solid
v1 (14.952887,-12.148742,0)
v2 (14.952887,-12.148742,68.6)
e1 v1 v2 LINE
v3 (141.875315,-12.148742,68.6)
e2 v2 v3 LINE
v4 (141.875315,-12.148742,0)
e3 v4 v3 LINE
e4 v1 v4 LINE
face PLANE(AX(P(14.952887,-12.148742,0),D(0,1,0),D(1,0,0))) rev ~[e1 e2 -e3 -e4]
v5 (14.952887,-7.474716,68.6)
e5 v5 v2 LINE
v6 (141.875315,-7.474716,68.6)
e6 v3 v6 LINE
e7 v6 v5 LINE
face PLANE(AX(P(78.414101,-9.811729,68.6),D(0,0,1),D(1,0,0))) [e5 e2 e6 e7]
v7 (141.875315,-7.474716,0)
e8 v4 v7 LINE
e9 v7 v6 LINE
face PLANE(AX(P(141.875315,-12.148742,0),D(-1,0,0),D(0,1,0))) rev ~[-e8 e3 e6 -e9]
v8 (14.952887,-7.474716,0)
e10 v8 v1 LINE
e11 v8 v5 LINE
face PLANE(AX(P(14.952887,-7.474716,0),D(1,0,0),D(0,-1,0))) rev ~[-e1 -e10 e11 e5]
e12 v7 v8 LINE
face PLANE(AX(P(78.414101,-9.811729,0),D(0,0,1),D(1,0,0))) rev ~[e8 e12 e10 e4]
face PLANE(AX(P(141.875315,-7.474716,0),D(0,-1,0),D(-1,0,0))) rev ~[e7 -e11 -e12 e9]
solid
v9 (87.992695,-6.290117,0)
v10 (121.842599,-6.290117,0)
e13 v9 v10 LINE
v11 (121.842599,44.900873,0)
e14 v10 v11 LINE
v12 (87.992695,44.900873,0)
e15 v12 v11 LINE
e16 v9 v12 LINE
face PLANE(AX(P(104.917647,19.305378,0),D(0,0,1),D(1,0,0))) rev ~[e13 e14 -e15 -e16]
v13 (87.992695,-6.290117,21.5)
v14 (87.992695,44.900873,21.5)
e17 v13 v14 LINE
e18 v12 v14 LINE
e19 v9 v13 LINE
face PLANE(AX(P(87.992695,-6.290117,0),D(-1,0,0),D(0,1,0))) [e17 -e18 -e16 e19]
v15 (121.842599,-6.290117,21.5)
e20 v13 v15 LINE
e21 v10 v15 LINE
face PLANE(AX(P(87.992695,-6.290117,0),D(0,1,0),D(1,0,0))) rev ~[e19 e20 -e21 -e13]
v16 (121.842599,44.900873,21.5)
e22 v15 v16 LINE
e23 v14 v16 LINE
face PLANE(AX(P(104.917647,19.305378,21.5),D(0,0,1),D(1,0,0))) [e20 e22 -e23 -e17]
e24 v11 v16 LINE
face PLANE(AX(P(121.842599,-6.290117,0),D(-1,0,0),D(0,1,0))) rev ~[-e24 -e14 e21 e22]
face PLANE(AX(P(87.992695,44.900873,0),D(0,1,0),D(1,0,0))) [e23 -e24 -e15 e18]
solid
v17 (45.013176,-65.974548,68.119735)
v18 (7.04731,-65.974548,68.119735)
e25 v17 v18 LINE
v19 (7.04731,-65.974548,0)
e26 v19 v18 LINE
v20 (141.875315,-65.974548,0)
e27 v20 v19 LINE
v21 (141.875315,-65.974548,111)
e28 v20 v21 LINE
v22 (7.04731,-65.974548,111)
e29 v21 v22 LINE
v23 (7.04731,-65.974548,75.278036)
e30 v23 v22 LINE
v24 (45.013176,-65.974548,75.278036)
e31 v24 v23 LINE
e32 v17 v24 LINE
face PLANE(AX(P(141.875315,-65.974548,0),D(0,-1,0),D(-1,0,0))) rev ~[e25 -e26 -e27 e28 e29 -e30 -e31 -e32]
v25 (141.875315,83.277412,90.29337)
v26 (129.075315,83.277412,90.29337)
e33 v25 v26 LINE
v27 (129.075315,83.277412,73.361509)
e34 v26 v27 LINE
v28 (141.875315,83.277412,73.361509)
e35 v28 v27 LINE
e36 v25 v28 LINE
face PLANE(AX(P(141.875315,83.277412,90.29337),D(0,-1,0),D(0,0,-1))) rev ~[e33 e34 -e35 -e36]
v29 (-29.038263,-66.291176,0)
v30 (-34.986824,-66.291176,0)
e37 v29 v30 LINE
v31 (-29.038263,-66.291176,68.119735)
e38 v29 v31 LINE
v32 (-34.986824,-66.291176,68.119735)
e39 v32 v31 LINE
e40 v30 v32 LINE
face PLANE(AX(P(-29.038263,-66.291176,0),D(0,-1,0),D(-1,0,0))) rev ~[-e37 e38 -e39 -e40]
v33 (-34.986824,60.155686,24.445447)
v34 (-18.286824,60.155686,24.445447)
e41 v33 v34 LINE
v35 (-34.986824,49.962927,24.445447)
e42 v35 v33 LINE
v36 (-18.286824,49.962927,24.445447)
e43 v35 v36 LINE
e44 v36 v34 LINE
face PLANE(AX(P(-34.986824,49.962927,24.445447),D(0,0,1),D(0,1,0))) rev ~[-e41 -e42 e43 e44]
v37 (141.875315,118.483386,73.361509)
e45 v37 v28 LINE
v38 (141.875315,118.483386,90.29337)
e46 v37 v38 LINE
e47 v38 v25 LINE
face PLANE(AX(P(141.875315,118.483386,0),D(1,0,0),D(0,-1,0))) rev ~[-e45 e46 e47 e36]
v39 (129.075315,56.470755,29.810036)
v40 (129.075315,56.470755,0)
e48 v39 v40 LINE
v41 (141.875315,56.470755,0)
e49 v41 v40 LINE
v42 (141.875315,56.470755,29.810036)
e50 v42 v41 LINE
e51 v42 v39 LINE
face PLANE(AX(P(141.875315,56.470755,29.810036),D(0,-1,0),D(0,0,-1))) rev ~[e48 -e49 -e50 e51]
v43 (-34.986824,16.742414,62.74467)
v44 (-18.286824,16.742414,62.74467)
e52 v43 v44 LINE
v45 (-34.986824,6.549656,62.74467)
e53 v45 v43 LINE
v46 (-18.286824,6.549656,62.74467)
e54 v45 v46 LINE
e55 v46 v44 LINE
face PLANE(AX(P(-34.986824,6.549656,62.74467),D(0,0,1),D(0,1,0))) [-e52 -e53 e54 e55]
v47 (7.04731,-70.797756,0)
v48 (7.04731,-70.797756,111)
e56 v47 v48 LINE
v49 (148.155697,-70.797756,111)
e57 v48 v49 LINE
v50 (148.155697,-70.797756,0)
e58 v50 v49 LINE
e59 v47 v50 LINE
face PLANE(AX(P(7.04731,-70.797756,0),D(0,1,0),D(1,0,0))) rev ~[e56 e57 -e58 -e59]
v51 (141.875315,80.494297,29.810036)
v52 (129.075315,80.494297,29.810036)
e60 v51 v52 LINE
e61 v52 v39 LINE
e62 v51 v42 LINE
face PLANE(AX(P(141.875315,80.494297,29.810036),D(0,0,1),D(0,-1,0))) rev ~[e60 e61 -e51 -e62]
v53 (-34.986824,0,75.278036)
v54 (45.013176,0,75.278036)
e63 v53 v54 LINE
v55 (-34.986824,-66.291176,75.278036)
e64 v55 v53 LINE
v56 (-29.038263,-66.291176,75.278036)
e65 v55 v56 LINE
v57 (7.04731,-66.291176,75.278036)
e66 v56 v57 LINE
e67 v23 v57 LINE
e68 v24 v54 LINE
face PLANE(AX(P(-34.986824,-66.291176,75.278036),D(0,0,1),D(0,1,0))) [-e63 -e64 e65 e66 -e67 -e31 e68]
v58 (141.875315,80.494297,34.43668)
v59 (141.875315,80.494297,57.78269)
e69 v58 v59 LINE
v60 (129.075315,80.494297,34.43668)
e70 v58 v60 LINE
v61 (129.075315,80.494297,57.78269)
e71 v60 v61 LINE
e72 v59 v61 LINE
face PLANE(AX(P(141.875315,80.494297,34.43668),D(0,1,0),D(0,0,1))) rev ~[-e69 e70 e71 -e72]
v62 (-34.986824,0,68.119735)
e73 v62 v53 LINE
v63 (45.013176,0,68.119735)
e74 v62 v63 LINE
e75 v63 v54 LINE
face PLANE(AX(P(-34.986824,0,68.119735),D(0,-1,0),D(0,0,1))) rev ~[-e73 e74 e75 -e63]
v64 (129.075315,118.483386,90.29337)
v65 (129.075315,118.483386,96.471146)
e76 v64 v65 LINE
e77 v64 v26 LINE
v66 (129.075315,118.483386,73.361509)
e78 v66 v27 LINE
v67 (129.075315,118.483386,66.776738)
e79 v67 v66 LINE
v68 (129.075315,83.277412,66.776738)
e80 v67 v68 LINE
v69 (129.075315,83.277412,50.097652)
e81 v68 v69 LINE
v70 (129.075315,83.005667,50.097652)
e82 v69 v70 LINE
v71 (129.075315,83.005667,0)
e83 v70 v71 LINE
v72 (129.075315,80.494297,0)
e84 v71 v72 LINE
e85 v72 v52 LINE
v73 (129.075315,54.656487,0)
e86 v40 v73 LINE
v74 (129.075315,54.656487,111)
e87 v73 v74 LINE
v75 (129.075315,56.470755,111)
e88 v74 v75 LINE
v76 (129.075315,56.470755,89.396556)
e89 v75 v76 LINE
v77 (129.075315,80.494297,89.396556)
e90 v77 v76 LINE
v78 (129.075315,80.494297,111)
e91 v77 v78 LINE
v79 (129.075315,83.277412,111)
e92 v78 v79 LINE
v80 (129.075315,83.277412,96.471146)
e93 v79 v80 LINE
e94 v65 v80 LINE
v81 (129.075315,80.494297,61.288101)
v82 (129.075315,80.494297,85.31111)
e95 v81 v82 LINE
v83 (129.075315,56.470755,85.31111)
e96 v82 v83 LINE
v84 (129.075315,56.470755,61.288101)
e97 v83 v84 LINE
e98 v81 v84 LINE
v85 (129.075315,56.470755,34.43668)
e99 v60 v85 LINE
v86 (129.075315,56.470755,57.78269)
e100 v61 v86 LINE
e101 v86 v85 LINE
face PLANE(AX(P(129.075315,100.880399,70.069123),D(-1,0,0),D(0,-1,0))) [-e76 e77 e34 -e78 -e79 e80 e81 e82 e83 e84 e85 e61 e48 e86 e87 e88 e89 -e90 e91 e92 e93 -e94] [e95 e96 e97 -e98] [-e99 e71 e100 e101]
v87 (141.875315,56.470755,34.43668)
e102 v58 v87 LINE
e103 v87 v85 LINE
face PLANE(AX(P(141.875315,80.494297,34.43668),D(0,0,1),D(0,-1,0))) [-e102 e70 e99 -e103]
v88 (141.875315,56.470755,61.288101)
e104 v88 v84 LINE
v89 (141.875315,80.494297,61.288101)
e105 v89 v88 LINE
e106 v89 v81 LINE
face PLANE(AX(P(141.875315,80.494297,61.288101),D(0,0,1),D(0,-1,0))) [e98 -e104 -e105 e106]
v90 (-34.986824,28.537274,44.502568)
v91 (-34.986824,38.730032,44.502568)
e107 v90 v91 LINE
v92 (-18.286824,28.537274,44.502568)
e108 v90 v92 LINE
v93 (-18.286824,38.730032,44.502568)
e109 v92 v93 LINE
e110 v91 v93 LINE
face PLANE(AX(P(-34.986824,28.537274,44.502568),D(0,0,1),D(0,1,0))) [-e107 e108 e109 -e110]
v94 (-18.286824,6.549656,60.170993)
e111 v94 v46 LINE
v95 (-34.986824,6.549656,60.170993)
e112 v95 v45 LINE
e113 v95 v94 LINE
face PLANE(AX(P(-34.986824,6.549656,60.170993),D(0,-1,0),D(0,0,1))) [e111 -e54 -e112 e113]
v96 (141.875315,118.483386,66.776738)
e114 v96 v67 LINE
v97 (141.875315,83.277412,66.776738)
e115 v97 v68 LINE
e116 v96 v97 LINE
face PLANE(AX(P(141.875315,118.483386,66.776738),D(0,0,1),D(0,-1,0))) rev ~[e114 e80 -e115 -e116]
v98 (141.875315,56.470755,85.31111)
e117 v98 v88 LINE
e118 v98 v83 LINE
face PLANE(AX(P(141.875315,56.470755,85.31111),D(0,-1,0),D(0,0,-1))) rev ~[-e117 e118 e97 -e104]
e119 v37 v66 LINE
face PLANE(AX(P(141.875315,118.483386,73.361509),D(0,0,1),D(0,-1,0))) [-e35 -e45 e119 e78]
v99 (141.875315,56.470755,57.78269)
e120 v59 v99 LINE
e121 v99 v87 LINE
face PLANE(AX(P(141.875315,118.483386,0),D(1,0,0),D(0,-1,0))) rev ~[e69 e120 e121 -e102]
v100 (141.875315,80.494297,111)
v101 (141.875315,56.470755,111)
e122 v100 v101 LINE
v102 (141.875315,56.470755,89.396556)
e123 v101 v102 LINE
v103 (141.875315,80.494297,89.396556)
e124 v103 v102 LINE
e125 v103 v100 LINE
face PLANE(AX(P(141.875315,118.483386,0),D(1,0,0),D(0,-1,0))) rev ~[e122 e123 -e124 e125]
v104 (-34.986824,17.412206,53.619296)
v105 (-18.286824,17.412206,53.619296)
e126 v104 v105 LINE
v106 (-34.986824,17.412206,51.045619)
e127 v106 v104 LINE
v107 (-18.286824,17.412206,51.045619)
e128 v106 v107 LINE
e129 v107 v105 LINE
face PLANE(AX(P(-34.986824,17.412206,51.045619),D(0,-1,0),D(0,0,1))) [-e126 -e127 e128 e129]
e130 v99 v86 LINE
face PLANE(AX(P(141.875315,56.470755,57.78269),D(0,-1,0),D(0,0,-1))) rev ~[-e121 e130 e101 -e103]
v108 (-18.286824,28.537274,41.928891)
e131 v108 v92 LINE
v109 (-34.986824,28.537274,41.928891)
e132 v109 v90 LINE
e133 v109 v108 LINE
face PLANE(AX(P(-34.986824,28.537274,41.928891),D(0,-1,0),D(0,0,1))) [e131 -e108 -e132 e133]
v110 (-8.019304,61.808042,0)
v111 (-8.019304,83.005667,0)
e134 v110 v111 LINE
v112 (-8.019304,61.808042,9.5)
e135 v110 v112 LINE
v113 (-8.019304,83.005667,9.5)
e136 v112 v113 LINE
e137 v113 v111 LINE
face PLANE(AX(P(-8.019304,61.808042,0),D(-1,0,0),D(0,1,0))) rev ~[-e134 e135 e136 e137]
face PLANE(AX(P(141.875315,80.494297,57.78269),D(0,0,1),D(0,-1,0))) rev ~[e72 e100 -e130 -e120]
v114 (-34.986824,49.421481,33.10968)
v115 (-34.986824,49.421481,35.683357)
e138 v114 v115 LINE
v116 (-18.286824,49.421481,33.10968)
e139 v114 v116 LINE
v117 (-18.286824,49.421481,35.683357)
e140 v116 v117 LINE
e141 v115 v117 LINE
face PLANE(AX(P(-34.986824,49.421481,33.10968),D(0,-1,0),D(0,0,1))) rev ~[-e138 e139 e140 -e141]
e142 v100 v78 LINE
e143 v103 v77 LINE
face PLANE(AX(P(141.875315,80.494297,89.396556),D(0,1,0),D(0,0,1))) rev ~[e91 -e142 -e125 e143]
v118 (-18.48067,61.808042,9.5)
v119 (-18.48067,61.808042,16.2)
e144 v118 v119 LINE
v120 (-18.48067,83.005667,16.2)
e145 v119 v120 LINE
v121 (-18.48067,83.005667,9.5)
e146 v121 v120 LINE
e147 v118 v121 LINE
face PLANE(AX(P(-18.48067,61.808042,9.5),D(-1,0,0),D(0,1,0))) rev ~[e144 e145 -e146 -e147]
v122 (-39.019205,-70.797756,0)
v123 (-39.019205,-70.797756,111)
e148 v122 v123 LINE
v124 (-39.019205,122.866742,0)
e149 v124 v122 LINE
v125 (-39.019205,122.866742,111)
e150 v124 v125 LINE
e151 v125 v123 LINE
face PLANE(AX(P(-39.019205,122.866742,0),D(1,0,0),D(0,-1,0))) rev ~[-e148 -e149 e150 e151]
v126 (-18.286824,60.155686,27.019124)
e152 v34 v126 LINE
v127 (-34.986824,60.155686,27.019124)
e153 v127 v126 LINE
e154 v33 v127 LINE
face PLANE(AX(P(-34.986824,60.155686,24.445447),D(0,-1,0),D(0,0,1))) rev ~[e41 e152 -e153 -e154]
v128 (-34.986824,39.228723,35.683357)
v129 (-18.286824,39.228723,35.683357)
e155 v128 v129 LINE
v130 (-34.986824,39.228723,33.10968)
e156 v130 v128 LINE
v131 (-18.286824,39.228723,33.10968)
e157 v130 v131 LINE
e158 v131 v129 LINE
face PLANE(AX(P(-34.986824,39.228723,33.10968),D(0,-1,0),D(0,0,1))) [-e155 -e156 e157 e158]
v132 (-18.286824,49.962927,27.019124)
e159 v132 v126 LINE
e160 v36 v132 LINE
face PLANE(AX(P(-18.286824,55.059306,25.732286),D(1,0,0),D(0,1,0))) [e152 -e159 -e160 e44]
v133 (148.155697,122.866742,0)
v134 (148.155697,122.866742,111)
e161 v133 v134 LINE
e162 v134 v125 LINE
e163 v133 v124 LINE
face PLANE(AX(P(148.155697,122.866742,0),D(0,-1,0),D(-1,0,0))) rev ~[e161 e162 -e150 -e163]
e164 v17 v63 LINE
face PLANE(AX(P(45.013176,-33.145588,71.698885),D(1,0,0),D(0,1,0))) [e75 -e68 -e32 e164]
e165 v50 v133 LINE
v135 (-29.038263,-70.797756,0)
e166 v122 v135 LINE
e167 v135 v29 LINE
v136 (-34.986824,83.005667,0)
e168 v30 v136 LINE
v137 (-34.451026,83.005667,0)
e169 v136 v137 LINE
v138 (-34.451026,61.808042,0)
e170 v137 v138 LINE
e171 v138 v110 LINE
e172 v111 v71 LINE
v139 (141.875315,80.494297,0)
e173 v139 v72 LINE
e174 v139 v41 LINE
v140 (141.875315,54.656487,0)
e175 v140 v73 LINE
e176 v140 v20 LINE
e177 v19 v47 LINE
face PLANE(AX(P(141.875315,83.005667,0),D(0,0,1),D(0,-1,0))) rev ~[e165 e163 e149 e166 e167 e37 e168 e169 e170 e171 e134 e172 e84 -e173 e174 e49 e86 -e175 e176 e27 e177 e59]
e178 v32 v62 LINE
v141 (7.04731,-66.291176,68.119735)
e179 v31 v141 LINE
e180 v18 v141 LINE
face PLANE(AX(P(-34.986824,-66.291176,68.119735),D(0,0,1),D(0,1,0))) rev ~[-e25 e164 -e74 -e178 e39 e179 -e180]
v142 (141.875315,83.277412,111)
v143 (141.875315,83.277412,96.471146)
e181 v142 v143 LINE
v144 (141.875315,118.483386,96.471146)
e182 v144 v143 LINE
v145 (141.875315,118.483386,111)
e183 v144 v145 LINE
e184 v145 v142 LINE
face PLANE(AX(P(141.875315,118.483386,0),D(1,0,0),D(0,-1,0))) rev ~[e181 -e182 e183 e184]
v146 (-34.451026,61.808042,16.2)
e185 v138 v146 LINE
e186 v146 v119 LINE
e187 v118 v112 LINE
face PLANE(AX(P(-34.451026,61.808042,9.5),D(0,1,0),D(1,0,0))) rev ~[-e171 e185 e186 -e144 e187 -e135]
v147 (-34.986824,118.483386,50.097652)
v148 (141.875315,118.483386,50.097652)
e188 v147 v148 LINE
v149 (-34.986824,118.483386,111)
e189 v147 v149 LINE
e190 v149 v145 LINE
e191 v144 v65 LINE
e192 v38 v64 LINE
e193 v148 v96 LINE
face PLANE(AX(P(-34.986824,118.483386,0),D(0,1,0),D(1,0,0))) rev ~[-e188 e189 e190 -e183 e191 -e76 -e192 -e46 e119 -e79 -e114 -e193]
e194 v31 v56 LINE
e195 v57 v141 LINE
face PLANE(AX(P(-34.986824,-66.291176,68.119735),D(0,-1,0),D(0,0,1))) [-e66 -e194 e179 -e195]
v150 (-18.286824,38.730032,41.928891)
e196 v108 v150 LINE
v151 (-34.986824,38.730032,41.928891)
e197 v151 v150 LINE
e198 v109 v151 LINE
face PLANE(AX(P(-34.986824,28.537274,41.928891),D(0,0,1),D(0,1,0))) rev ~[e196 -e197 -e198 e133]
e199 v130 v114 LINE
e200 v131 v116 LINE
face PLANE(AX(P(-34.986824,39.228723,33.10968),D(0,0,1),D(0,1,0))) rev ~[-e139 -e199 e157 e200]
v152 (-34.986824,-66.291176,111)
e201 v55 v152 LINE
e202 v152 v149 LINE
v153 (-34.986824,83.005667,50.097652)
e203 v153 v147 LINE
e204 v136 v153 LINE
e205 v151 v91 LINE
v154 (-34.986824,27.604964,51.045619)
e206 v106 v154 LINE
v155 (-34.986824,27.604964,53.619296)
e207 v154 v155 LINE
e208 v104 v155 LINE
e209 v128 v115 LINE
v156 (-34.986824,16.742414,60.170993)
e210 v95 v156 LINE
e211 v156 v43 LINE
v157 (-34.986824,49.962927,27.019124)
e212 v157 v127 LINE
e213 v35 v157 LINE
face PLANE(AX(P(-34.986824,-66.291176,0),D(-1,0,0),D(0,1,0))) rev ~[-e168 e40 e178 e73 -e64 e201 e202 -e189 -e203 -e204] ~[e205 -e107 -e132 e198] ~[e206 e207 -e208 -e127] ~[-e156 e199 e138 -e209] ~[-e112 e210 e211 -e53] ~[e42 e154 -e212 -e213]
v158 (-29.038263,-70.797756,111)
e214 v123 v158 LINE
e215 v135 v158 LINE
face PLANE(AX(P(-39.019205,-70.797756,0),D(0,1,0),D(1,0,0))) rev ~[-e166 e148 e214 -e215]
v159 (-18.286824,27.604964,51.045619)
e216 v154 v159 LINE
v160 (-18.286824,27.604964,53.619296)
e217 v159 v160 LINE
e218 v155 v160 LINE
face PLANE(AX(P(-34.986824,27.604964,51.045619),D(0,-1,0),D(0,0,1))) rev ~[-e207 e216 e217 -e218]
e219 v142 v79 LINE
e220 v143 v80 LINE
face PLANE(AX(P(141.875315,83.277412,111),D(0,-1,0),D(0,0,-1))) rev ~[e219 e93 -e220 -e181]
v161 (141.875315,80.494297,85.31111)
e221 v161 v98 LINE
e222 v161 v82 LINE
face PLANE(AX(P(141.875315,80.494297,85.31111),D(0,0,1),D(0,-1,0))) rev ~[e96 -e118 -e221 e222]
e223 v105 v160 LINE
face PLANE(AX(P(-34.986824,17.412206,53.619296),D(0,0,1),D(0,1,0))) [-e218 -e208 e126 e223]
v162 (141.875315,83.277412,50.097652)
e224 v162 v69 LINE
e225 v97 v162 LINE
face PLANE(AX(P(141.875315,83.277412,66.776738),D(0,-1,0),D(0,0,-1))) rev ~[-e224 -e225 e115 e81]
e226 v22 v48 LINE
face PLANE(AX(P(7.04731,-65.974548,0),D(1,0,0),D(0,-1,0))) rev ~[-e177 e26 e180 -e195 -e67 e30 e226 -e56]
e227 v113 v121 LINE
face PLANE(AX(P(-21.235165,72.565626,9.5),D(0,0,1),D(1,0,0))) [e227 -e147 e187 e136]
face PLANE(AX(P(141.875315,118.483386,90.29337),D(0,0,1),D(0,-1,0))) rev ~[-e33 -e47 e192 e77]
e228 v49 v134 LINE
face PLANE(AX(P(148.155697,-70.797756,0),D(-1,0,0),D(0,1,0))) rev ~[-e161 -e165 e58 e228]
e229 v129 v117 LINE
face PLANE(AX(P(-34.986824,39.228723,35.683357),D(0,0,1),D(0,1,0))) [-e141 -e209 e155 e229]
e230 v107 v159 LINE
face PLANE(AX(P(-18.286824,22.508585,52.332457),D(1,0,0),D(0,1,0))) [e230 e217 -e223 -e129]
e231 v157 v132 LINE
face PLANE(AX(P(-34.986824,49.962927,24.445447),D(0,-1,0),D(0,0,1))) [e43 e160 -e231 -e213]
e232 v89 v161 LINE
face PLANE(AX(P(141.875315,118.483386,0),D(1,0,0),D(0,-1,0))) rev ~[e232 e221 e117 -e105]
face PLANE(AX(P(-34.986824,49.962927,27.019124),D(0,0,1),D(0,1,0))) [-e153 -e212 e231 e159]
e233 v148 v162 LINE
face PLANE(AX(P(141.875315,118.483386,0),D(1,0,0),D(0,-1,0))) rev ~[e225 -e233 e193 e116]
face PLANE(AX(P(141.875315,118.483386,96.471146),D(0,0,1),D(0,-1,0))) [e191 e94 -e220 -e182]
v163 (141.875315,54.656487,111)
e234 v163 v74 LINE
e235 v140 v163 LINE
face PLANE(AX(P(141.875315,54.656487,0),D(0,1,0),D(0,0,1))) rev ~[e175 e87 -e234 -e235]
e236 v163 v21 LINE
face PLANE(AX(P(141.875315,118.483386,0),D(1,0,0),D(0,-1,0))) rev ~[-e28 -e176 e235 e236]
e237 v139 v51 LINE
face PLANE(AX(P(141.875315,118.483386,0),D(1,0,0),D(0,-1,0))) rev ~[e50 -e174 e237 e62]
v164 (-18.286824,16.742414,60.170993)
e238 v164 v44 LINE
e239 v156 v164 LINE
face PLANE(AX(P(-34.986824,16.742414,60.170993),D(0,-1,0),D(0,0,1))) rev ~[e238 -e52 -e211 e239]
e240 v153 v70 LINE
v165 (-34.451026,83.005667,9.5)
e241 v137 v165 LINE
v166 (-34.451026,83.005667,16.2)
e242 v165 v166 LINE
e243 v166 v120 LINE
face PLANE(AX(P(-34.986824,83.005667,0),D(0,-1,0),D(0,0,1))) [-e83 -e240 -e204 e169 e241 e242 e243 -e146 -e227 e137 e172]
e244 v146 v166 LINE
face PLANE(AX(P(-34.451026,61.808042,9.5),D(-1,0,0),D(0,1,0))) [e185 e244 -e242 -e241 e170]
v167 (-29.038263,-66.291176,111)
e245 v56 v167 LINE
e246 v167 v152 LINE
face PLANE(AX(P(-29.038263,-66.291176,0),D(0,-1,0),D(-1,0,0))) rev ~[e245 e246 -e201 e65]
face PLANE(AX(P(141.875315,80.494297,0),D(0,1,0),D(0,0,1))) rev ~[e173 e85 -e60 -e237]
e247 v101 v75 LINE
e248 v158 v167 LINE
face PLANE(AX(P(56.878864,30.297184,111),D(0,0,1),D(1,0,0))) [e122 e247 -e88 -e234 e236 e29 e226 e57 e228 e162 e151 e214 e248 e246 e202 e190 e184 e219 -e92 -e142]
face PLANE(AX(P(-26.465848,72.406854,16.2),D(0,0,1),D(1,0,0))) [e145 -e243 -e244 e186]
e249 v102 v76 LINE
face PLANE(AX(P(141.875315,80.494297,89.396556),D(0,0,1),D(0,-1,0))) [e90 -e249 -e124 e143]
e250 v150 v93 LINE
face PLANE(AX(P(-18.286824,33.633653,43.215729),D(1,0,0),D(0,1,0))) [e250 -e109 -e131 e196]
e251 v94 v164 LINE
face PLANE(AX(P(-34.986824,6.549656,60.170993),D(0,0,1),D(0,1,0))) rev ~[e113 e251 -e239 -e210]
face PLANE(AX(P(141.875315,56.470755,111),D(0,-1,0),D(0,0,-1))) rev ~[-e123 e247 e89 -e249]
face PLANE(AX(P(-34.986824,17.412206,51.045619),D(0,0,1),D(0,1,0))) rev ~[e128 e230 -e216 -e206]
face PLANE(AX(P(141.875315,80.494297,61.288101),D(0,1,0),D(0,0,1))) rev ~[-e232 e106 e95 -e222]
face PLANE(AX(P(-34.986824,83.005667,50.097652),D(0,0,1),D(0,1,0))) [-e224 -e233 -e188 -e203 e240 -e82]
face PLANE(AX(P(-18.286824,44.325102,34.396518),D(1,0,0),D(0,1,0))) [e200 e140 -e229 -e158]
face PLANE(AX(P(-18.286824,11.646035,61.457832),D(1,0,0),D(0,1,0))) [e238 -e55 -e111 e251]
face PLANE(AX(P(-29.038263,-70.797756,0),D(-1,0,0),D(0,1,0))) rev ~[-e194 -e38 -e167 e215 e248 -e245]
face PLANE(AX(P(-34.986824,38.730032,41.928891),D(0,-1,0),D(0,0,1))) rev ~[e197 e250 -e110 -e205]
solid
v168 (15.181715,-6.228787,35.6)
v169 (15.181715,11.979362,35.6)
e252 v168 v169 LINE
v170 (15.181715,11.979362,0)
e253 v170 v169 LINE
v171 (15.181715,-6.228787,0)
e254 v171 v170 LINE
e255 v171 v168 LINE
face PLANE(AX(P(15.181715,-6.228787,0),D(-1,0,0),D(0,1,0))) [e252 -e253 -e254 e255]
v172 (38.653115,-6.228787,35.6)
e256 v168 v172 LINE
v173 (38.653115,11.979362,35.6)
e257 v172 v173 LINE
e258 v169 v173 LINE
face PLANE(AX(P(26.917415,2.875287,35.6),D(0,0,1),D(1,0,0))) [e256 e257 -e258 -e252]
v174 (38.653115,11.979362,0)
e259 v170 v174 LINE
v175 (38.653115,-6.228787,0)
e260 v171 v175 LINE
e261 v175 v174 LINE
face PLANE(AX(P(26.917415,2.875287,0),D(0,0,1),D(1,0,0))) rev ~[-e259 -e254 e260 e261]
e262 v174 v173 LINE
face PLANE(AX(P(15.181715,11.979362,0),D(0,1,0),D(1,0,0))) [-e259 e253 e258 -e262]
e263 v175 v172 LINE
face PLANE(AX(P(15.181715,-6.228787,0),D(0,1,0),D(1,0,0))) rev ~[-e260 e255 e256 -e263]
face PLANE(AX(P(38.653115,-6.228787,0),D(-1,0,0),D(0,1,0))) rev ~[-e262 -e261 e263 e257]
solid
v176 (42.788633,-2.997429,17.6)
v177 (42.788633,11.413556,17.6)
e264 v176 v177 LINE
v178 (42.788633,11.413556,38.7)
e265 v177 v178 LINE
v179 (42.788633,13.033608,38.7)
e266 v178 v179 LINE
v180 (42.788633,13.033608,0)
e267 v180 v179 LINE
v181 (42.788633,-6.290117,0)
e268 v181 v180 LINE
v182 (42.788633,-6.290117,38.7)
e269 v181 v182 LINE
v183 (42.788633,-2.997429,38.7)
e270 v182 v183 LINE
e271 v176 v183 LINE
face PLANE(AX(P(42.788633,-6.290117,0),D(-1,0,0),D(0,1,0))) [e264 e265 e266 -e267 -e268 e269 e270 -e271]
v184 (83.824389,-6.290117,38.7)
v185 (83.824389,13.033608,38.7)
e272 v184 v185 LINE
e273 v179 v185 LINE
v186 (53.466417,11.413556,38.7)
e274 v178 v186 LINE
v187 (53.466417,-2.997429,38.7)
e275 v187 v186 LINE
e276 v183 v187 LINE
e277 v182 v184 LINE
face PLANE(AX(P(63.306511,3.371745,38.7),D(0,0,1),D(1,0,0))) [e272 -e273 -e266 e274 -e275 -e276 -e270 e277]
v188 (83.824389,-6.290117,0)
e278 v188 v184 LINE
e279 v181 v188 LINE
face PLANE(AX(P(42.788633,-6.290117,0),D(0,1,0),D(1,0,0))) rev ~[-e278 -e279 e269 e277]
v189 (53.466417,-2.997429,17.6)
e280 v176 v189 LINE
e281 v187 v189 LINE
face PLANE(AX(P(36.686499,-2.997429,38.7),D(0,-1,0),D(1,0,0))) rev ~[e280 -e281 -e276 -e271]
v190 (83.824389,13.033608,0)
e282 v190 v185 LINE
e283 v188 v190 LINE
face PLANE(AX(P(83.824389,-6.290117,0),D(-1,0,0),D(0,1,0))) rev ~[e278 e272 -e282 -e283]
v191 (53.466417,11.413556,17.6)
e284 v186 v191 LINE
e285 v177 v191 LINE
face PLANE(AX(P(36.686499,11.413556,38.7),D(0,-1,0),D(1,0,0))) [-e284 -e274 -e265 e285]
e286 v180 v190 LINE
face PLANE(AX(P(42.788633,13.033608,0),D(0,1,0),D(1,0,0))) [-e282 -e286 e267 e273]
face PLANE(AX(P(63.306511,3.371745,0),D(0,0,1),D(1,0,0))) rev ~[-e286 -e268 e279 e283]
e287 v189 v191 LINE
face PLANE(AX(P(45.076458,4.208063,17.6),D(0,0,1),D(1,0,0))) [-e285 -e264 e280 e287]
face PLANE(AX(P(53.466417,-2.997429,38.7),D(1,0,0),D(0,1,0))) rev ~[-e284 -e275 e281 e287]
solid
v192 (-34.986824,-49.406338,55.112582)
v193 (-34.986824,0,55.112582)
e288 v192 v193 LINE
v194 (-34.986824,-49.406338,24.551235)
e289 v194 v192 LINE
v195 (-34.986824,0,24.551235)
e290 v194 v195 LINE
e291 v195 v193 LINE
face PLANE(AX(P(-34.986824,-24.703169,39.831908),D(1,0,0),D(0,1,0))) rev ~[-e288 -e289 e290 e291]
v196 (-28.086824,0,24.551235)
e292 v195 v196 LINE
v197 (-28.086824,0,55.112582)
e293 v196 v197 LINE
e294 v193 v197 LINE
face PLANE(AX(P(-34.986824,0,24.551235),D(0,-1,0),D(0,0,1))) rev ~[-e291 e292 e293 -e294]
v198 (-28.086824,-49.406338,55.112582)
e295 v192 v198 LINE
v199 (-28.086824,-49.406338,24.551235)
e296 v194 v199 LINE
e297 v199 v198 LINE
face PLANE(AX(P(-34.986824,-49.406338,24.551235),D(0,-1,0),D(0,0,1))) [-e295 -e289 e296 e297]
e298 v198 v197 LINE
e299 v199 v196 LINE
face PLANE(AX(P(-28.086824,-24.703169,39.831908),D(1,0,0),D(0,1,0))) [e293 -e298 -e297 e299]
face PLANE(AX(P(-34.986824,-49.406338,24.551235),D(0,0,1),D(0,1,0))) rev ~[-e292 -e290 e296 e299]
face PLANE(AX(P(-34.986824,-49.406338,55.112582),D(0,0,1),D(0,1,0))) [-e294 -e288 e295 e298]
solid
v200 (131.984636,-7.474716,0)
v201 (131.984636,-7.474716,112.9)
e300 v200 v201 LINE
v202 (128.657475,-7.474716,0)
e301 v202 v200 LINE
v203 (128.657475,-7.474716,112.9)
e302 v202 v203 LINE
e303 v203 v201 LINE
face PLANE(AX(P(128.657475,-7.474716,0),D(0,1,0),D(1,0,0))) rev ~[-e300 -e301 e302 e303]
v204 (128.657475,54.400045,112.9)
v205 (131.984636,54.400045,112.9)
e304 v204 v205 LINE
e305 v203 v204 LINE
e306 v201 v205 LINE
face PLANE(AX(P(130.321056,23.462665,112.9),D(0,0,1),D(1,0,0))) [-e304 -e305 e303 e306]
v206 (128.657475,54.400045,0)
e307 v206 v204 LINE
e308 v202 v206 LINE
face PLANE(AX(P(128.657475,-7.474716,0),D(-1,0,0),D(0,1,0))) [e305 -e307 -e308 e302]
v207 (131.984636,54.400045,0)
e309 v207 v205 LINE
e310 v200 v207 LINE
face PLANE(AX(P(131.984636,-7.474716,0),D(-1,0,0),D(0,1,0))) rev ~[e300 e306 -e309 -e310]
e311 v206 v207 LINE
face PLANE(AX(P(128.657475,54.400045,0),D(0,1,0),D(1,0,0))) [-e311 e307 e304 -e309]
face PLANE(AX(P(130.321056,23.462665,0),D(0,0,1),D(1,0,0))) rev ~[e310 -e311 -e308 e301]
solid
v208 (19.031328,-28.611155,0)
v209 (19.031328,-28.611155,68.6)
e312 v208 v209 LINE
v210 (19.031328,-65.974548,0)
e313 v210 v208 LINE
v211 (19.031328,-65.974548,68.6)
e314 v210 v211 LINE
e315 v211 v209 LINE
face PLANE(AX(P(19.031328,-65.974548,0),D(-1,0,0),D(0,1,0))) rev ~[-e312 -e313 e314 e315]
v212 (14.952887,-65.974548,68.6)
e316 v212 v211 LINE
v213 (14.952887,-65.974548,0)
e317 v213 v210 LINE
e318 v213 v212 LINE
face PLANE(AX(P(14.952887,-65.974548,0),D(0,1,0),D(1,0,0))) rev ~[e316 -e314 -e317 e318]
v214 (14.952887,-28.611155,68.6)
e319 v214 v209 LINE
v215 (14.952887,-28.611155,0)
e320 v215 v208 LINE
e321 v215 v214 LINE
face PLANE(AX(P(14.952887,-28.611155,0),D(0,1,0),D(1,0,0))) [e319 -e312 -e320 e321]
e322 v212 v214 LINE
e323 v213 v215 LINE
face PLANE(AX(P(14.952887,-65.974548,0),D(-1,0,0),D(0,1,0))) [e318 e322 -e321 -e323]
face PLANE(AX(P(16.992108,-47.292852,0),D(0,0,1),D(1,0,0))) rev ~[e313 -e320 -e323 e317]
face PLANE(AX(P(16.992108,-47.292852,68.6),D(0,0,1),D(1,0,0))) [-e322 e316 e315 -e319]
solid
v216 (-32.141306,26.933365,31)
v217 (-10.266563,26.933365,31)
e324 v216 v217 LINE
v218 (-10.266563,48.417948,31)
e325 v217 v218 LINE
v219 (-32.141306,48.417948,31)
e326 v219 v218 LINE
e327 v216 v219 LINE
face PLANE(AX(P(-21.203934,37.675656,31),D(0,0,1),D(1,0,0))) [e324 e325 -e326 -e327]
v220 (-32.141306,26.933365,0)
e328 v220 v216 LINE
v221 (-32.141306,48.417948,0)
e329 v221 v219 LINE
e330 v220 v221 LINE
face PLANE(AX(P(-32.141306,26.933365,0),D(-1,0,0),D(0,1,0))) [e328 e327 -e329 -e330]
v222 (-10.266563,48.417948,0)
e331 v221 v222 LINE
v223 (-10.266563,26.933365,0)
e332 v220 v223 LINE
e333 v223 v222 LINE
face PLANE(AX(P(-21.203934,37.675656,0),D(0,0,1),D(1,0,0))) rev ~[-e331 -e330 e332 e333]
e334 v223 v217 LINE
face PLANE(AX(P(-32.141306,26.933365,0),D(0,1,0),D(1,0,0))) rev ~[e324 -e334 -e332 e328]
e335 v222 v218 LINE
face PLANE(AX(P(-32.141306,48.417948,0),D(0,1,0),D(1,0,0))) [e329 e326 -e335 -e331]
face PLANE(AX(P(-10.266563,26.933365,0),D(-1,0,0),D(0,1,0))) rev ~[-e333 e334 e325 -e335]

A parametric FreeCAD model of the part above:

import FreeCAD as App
import Part
import Sketcher
from FreeCAD import Vector


def add_polygon(sketch, points):
    """Adds a closed chain of lines whose ends are joined by coincident constraints."""
    first, n = sketch.GeometryCount, len(points)
    for a, b in zip(points, points[1:] + points[:1]):
        sketch.addGeometry(Part.LineSegment(App.Vector(*a, 0), App.Vector(*b, 0)), False)
    for i in range(n):
        sketch.addConstraint(Sketcher.Constraint("Coincident", first + i, 2, first + (i + 1) % n, 1))

doc = App.newDocument("Part")
params = doc.addObject("Spreadsheet::Sheet", "Params")
for row, (alias, value) in enumerate([
    ("pad1_length", "111 mm"),
    ("pad2_length", "80 mm"),
    ("pad3_length", "177 mm"),
    ("sketch4_height", "111 mm"),
    ("pad4_length", "12.8 mm"),
    ("pad5_length", "16.7 mm"),
    ("pad6_length", "9.5 mm"),
    ("pad7_length", "6.7 mm"),
    ("pad8_length", "21.5 mm"),
    ("pad9_length", "38.7 mm"),
    ("pocket1_length", "21.1 mm"),
    ("pad10_length", "6.9 mm"),
    ("pad11_length", "112.9 mm"),
    ("pad12_length", "68.6 mm"),
    ("pad13_length", "68.6 mm"),
    ("pad14_length", "31 mm"),
    ("pad15_length", "35.6 mm"),
], start=1):
    params.set(f"A{row}", alias)
    params.set(f"B{row}", "=" + value)
    params.setAlias(f"B{row}", alias)

body = doc.addObject("PartDesign::Body", "Body")

# Sketch on XY plane
sketch1 = body.newObject("Sketcher::SketchObject", "Sketch")
sketch1.AttachmentSupport = (doc.getObject("XY_Plane"), [""])
sketch1.MapMode = "FlatFace"
add_polygon(sketch1, [(-39.019205, -70.797756), (-29.038263, -70.797756), (-29.038263, -66.291176), (-34.986824, -66.291176), (-34.986824, 118.483386), (141.875315, 118.483386), (141.875315, -65.974548), (7.04731, -65.974548), (7.04731, -70.797756), (148.155697, -70.797756), (148.155697, 122.866742), (-39.019205, 122.866742)])  # lines 0-11
sketch1.addConstraint([
    Sketcher.Constraint("Horizontal", 0),
    Sketcher.Constraint("Vertical", 1),
    Sketcher.Constraint("Horizontal", 2),
    Sketcher.Constraint("Vertical", 3),
    Sketcher.Constraint("Horizontal", 4),
    Sketcher.Constraint("Vertical", 5),
    Sketcher.Constraint("Horizontal", 6),
    Sketcher.Constraint("Vertical", 7),
    Sketcher.Constraint("Horizontal", 8),
    Sketcher.Constraint("Vertical", 9),
    Sketcher.Constraint("Horizontal", 10),
    Sketcher.Constraint("Vertical", 11),
    Sketcher.Constraint("Horizontal", 0, 2, 7, 2),
    Sketcher.Constraint("DistanceX", 10, 2, 10, 1, 187.174901),
    Sketcher.Constraint("DistanceY", 9, 1, 9, 2, 193.664499),
    Sketcher.Constraint("DistanceX", 0, 1, 0, 2, 9.980941),
    Sketcher.Constraint("DistanceX", 2, 2, 2, 1, 5.94856),
    Sketcher.Constraint("DistanceX", 4, 1, 4, 2, 176.862139),
    Sketcher.Constraint("DistanceY", 1, 1, 1, 2, 4.506581),
    Sketcher.Constraint("DistanceY", 3, 1, 3, 2, 184.774562),
    Sketcher.Constraint("DistanceX", 6, 2, 6, 1, 134.828006),
    Sketcher.Constraint("DistanceY", 5, 2, 5, 1, 184.457934),
    Sketcher.Constraint("DistanceY", 5, 2, -1, 1, 65.974548),
    Sketcher.Constraint("DistanceX", -1, 1, 6, 2, 7.04731),
])
pad1 = body.newObject("PartDesign::Pad", "Pad")
pad1.Profile = sketch1
pad1.setExpression("Length", "Params.pad1_length")

# Sketch on YZ plane
sketch2 = body.newObject("Sketcher::SketchObject", "Sketch001")
sketch2.AttachmentSupport = (doc.getObject("YZ_Plane"), [""])
sketch2.MapMode = "FlatFace"
sketch2.AttachmentOffset = App.Placement(Vector(0, 0, -34.986824), App.Rotation())
add_polygon(sketch2, [(-66.291176, 75.278036), (-66.291176, 68.119735), (0, 68.119735), (0, 75.278036)])  # lines 0-3
sketch2.addConstraint([
    Sketcher.Constraint("Vertical", 0),
    Sketcher.Constraint("Horizontal", 1),
    Sketcher.Constraint("Vertical", 2),
    Sketcher.Constraint("Horizontal", 3),
    Sketcher.Constraint("PointOnObject", 1, 2, -2),
    Sketcher.Constraint("DistanceY", 0, 2, 0, 1, 7.158302),
    Sketcher.Constraint("DistanceX", 1, 1, 1, 2, 66.291176),
    Sketcher.Constraint("DistanceY", -1, 1, 0, 2, 68.119735),
])
pad2 = body.newObject("PartDesign::Pad", "Pad001")
pad2.Profile = sketch2
pad2.setExpression("Length", "Params.pad2_length")

# Sketch on YZ plane
sketch3 = body.newObject("Sketcher::SketchObject", "Sketch002")
sketch3.AttachmentSupport = (doc.getObject("YZ_Plane"), [""])
sketch3.MapMode = "FlatFace"
sketch3.AttachmentOffset = App.Placement(Vector(0, 0, -34.986824), App.Rotation())
add_polygon(sketch3, [(83.005667, 50.097652), (83.005667, 0), (118.483386, 0), (118.483386, 50.097652)])  # lines 0-3
sketch3.addConstraint([
    Sketcher.Constraint("Vertical", 0),
    Sketcher.Constraint("Horizontal", 1),
    Sketcher.Constraint("Vertical", 2),
    Sketcher.Constraint("Horizontal", 3),
    Sketcher.Constraint("PointOnObject", 0, 2, -1),
    Sketcher.Constraint("DistanceX", 1, 1, 1, 2, 35.477719),
    Sketcher.Constraint("DistanceY", 0, 2, 0, 1, 50.097652),
    Sketcher.Constraint("DistanceX", -1, 1, 0, 2, 83.005667),
])
pad3 = body.newObject("PartDesign::Pad", "Pad002")
pad3.Profile = sketch3
pad3.setExpression("Length", "Params.pad3_length")

# Sketch on YZ plane
sketch4 = body.newObject("Sketcher::SketchObject", "Sketch003")
sketch4.AttachmentSupport = (doc.getObject("YZ_Plane"), [""])
sketch4.MapMode = "FlatFace"
sketch4.AttachmentOffset = App.Placement(Vector(0, 0, 141.875315), App.Rotation())
add_polygon(sketch4, [(118.483386, 73.361509), (118.483386, 66.776738), (83.277412, 66.776738), (83.277412, 50.097652), (83.005667, 50.097652), (83.005667, 0), (80.494297, 0), (80.494297, 29.810036), (56.470755, 29.810036), (56.470755, 0), (54.656487, 0), (54.656487, 111), (56.470755, 111), (56.470755, 89.396556), (80.494297, 89.396556), (80.494297, 111), (83.277412, 111), (83.277412, 96.471146), (118.483386, 96.471146), (118.483386, 90.29337), (83.277412, 90.29337), (83.277412, 73.361509)])  # lines 0-21
add_polygon(sketch4, [(56.470755, 34.43668), (80.494297, 34.43668), (80.494297, 57.78269), (56.470755, 57.78269)])  # lines 22-25
add_polygon(sketch4, [(56.470755, 61.288101), (80.494297, 61.288101), (80.494297, 85.31111), (56.470755, 85.31111)])  # lines 26-29
sketch4.addConstraint([
    Sketcher.Constraint("Vertical", 0),
    Sketcher.Constraint("Horizontal", 1),
    Sketcher.Constraint("Vertical", 2),
    Sketcher.Constraint("Horizontal", 3),
    Sketcher.Constraint("Vertical", 4),
    Sketcher.Constraint("Horizontal", 5),
    Sketcher.Constraint("Vertical", 6),
    Sketcher.Constraint("Horizontal", 7),
    Sketcher.Constraint("Vertical", 8),
    Sketcher.Constraint("Horizontal", 9),
    Sketcher.Constraint("Vertical", 10),
    Sketcher.Constraint("Horizontal", 11),
    Sketcher.Constraint("Vertical", 12),
    Sketcher.Constraint("Horizontal", 13),
    Sketcher.Constraint("Vertical", 14),
    Sketcher.Constraint("Horizontal", 15),
    Sketcher.Constraint("Vertical", 16),
    Sketcher.Constraint("Horizontal", 17),
    Sketcher.Constraint("Vertical", 18),
    Sketcher.Constraint("Horizontal", 19),
    Sketcher.Constraint("Vertical", 20),
    Sketcher.Constraint("Horizontal", 21),
    Sketcher.Constraint("Horizontal", 22),
    Sketcher.Constraint("Vertical", 23),
    Sketcher.Constraint("Horizontal", 24),
    Sketcher.Constraint("Vertical", 25),
    Sketcher.Constraint("Horizontal", 26),
    Sketcher.Constraint("Vertical", 27),
    Sketcher.Constraint("Horizontal", 28),
    Sketcher.Constraint("Vertical", 29),
    Sketcher.Constraint("PointOnObject", 4, 2, -1),
    Sketcher.Constraint("PointOnObject", 8, 2, -1),
    Sketcher.Constraint("Horizontal", 11, 2, 14, 2),
    Sketcher.Constraint("Vertical", 8, 2, 11, 2),
    Sketcher.Constraint("Vertical", 6, 2, 13, 2),
    Sketcher.Constraint("Vertical", 2, 2, 15, 2),
    Sketcher.Constraint("Vertical", 0, 2, 17, 2),
    Sketcher.Constraint("Vertical", 16, 2, 19, 2),
    Sketcher.Constraint("Vertical", 14, 2, 22, 2),
    Sketcher.Constraint("Vertical", 12, 2, 24, 2),
    Sketcher.Constraint("Vertical", 23, 2, 26, 2),
    Sketcher.Constraint("Vertical", 25, 2, 28, 2),
    Sketcher.Constraint("DistanceY", 10, 1, 10, 2, 111.0),
    Sketcher.Constraint("DistanceX", 5, 2, 5, 1, 2.51137),
    Sketcher.Constraint("DistanceX", 7, 2, 7, 1, 24.023541),
    Sketcher.Constraint("DistanceX", 9, 2, 9, 1, 1.814269),
    Sketcher.Constraint("DistanceY", 0, 2, 0, 1, 6.584771),
    Sketcher.Constraint("DistanceY", 4, 2, 4, 1, 50.097652),
    Sketcher.Constraint("DistanceY", 20, 2, 20, 1, 16.931862),
    Sketcher.Constraint("DistanceY", 23, 1, 23, 2, 23.34601),
    Sketcher.Constraint("DistanceY", 27, 1, 27, 2, 24.023009),
    Sketcher.Constraint("DistanceY", -1, 1, 26, 2, 61.288101),
    Sketcher.Constraint("DistanceY", 6, 2, 1, 2, 36.966702),
    Sketcher.Constraint("DistanceX", 10, 2, 0, 2, 63.826899),
    Sketcher.Constraint("DistanceY", 20, 2, 27, 2, 11.949602),
    Sketcher.Constraint("DistanceX", 1, 2, 1, 1, 35.205974),
    Sketcher.Constraint("DistanceY", 12, 2, 12, 1, 21.603444),
    Sketcher.Constraint("DistanceY", 16, 2, 16, 1, 14.528854),
    Sketcher.Constraint("DistanceX", -1, 1, 1, 2, 83.277412),
    Sketcher.Constraint("DistanceY", -1, 1, 22, 2, 34.43668),
])
sketch4.setExpression("Constraints[72]", "Params.sketch4_height")
pad4 = body.newObject("PartDesign::Pad", "Pad003")
pad4.Profile = sketch4
pad4.setExpression("Length", "Params.pad4_length")
pad4.Reversed = True

# Sketch on YZ plane
sketch5 = body.newObject("Sketcher::SketchObject", "Sketch004")
sketch5.AttachmentSupport = (doc.getObject("YZ_Plane"), [""])
sketch5.MapMode = "FlatFace"
sketch5.AttachmentOffset = App.Placement(Vector(0, 0, -34.986824), App.Rotation())
add_polygon(sketch5, [(6.549656, 62.74467), (6.549656, 60.170993), (16.742414, 60.170993), (16.742414, 62.74467)])  # lines 0-3
add_polygon(sketch5, [(17.412206, 53.619296), (17.412206, 51.045619), (27.604964, 51.045619), (27.604964, 53.619296)])  # lines 4-7
add_polygon(sketch5, [(28.537274, 44.502568), (28.537274, 41.928891), (38.730032, 41.928891), (38.730032, 44.502568)])  # lines 8-11
add_polygon(sketch5, [(39.228723, 35.683357), (39.228723, 33.10968), (49.421481, 33.10968), (49.421481, 35.683357)])  # lines 12-15
add_polygon(sketch5, [(49.962927, 27.019124), (49.962927, 24.445447), (60.155686, 24.445447), (60.155686, 27.019124)])  # lines 16-19
sketch5.addConstraint([
    Sketcher.Constraint("Vertical", 0),
    Sketcher.Constraint("Horizontal", 1),
    Sketcher.Constraint("Vertical", 2),
    Sketcher.Constraint("Horizontal", 3),
    Sketcher.Constraint("Vertical", 4),
    Sketcher.Constraint("Horizontal", 5),
    Sketcher.Constraint("Vertical", 6),
    Sketcher.Constraint("Horizontal", 7),
    Sketcher.Constraint("Vertical", 8),
    Sketcher.Constraint("Horizontal", 9),
    Sketcher.Constraint("Vertical", 10),
    Sketcher.Constraint("Horizontal", 11),
    Sketcher.Constraint("Vertical", 12),
    Sketcher.Constraint("Horizontal", 13),
    Sketcher.Constraint("Vertical", 14),
    Sketcher.Constraint("Horizontal", 15),
    Sketcher.Constraint("Vertical", 16),
    Sketcher.Constraint("Horizontal", 17),
    Sketcher.Constraint("Vertical", 18),
    Sketcher.Constraint("Horizontal", 19),
    Sketcher.Constraint("Equal", 3, 5),
    Sketcher.Constraint("Equal", 7, 9),
    Sketcher.Constraint("Equal", 11, 13),
    Sketcher.Constraint("Equal", 15, 17),
    Sketcher.Constraint("Equal", 2, 4),
    Sketcher.Constraint("Equal", 6, 8),
    Sketcher.Constraint("Equal", 10, 12),
    Sketcher.Constraint("Equal", 14, 16),
    Sketcher.Constraint("DistanceX", 1, 1, 1, 2, 10.192758),
    Sketcher.Constraint("DistanceY", 0, 2, 0, 1, 2.573677),
    Sketcher.Constraint("DistanceY", -1, 1, 2, 2, 62.74467),
    Sketcher.Constraint("DistanceY", -1, 1, 4, 2, 51.045619),
    Sketcher.Constraint("DistanceY", -1, 1, 8, 2, 41.928891),
    Sketcher.Constraint("DistanceY", -1, 1, 12, 2, 33.10968),
    Sketcher.Constraint("DistanceX", -1, 1, 13, 2, 49.421481),
    Sketcher.Constraint("DistanceX", 1, 2, 4, 2, 0.669792),
    Sketcher.Constraint("DistanceX", 5, 2, 8, 2, 0.93231),
    Sketcher.Constraint("DistanceX", 9, 2, 12, 2, 0.498691),
    Sketcher.Constraint("DistanceY", 16, 2, 14, 2, 11.237909),
    Sketcher.Constraint("DistanceX", -1, 1, 16, 2, 49.962927),
])
pad5 = body.newObject("PartDesign::Pad", "Pad004")
pad5.Profile = sketch5
pad5.setExpression("Length", "Params.pad5_length")

# Sketch on XY plane
sketch6 = body.newObject("Sketcher::SketchObject", "Sketch005")
sketch6.AttachmentSupport = (doc.getObject("XY_Plane"), [""])
sketch6.MapMode = "FlatFace"
add_polygon(sketch6, [(-8.019304, 83.32321), (-34.451026, 83.32321), (-34.451026, 61.808042), (-8.019304, 61.808042)])  # lines 0-3
sketch6.addConstraint([
    Sketcher.Constraint("Horizontal", 0),
    Sketcher.Constraint("Vertical", 1),
    Sketcher.Constraint("Horizontal", 2),
    Sketcher.Constraint("Vertical", 3),
    Sketcher.Constraint("DistanceY", 1, 2, 1, 1, 21.515168),
    Sketcher.Constraint("DistanceX", 0, 2, 0, 1, 26.431723),
    Sketcher.Constraint("DistanceY", -1, 1, 0, 2, 83.32321),
    Sketcher.Constraint("DistanceX", 0, 2, -1, 1, 34.451026),
])
pad6 = body.newObject("PartDesign::Pad", "Pad005")
pad6.Profile = sketch6
pad6.setExpression("Length", "Params.pad6_length")

# Sketch on XY plane
sketch7 = body.newObject("Sketcher::SketchObject", "Sketch006")
sketch7.AttachmentSupport = (doc.getObject("XY_Plane"), [""])
sketch7.MapMode = "FlatFace"
sketch7.AttachmentOffset = App.Placement(Vector(0, 0, 9.5), App.Rotation())
add_polygon(sketch7, [(-34.451026, 83.005667), (-34.451026, 61.808042), (-18.48067, 61.808042), (-18.48067, 83.005667)])  # lines 0-3
sketch7.addConstraint([
    Sketcher.Constraint("Vertical", 0),
    Sketcher.Constraint("Horizontal", 1),
    Sketcher.Constraint("Vertical", 2),
    Sketcher.Constraint("Horizontal", 3),
    Sketcher.Constraint("DistanceX", 1, 1, 1, 2, 15.970357),
    Sketcher.Constraint("DistanceY", 0, 2, 0, 1, 21.197625),
    Sketcher.Constraint("DistanceX", 1, 2, -1, 1, 18.48067),
    Sketcher.Constraint("DistanceY", -1, 1, 0, 2, 61.808042),
])
pad7 = body.newObject("PartDesign::Pad", "Pad006")
pad7.Profile = sketch7
pad7.setExpression("Length", "Params.pad7_length")
body2 = doc.addObject("PartDesign::Body", "Body001")

# Sketch on XY plane
sketch8 = body2.newObject("Sketcher::SketchObject", "Sketch007")
sketch8.AttachmentSupport = (doc.getObject("XY_Plane001"), [""])
sketch8.MapMode = "FlatFace"
add_polygon(sketch8, [(87.992695, 44.900873), (87.992695, -6.290117), (121.842599, -6.290117), (121.842599, 44.900873)])  # lines 0-3
sketch8.addConstraint([
    Sketcher.Constraint("Vertical", 0),
    Sketcher.Constraint("Horizontal", 1),
    Sketcher.Constraint("Vertical", 2),
    Sketcher.Constraint("Horizontal", 3),
    Sketcher.Constraint("DistanceY", 0, 2, 0, 1, 51.19099),
    Sketcher.Constraint("DistanceX", -1, 1, 1, 2, 121.842599),
    Sketcher.Constraint("DistanceX", 1, 1, 1, 2, 33.849904),
    Sketcher.Constraint("DistanceY", 0, 2, -1, 1, 6.290117),
])
pad8 = body2.newObject("PartDesign::Pad", "Pad007")
pad8.Profile = sketch8
pad8.setExpression("Length", "Params.pad8_length")
body3 = doc.addObject("PartDesign::Body", "Body002")

# Sketch on XY plane
sketch9 = body3.newObject("Sketcher::SketchObject", "Sketch008")
sketch9.AttachmentSupport = (doc.getObject("XY_Plane002"), [""])
sketch9.MapMode = "FlatFace"
add_polygon(sketch9, [(42.788633, 13.033608), (42.788633, -6.290117), (83.824389, -6.290117), (83.824389, 13.033608)])  # lines 0-3
sketch9.addConstraint([
    Sketcher.Constraint("Vertical", 0),
    Sketcher.Constraint("Horizontal", 1),
    Sketcher.Constraint("Vertical", 2),
    Sketcher.Constraint("Horizontal", 3),
    Sketcher.Constraint("DistanceX", 1, 1, 1, 2, 41.035756),
    Sketcher.Constraint("DistanceY", 0, 2, 0, 1, 19.323725),
    Sketcher.Constraint("DistanceX", -1, 1, 1, 2, 83.824389),
    Sketcher.Constraint("DistanceY", 0, 2, -1, 1, 6.290117),
])
pad9 = body3.newObject("PartDesign::Pad", "Pad008")
pad9.Profile = sketch9
pad9.setExpression("Length", "Params.pad9_length")

# Sketch on XY plane
sketch10 = body3.newObject("Sketcher::SketchObject", "Sketch009")
sketch10.AttachmentSupport = (doc.getObject("XY_Plane002"), [""])
sketch10.MapMode = "FlatFace"
sketch10.AttachmentOffset = App.Placement(Vector(0, 0, 38.7), App.Rotation())
add_polygon(sketch10, [(36.686499, 11.413556), (36.686499, -2.997429), (53.466417, -2.997429), (53.466417, 11.413556)])  # lines 0-3
sketch10.addConstraint([
    Sketcher.Constraint("Vertical", 0),
    Sketcher.Constraint("Horizontal", 1),
    Sketcher.Constraint("Vertical", 2),
    Sketcher.Constraint("Horizontal", 3),
    Sketcher.Constraint("DistanceX", 1, 1, 1, 2, 16.779918),
    Sketcher.Constraint("DistanceX", -1, 1, 0, 2, 36.686499),
    Sketcher.Constraint("DistanceY", 0, 2, 0, 1, 14.410984),
    Sketcher.Constraint("DistanceY", 0, 2, -1, 1, 2.997429),
])
pocket1 = body3.newObject("PartDesign::Pocket", "Pocket")
pocket1.Profile = sketch10
pocket1.setExpression("Length", "Params.pocket1_length")
body4 = doc.addObject("PartDesign::Body", "Body003")

# Sketch on YZ plane
sketch11 = body4.newObject("Sketcher::SketchObject", "Sketch010")
sketch11.AttachmentSupport = (doc.getObject("YZ_Plane003"), [""])
sketch11.MapMode = "FlatFace"
sketch11.AttachmentOffset = App.Placement(Vector(0, 0, -34.986824), App.Rotation())
add_polygon(sketch11, [(-49.406338, 55.112582), (-49.406338, 24.551235), (0, 24.551235), (0, 55.112582)])  # lines 0-3
sketch11.addConstraint([
    Sketcher.Constraint("Vertical", 0),
    Sketcher.Constraint("Horizontal", 1),
    Sketcher.Constraint("Vertical", 2),
    Sketcher.Constraint("Horizontal", 3),
    Sketcher.Constraint("PointOnObject", 1, 2, -2),
    Sketcher.Constraint("DistanceX", 1, 1, 1, 2, 49.406338),
    Sketcher.Constraint("DistanceY", 0, 2, 0, 1, 30.561347),
    Sketcher.Constraint("DistanceY", -1, 1, 2, 2, 55.112582),
])
pad10 = body4.newObject("PartDesign::Pad", "Pad009")
pad10.Profile = sketch11
pad10.setExpression("Length", "Params.pad10_length")
body5 = doc.addObject("PartDesign::Body", "Body004")

# Sketch on XY plane
sketch12 = body5.newObject("Sketcher::SketchObject", "Sketch011")
sketch12.AttachmentSupport = (doc.getObject("XY_Plane004"), [""])
sketch12.MapMode = "FlatFace"
add_polygon(sketch12, [(128.657475, 54.400045), (128.657475, -7.474716), (131.984636, -7.474716), (131.984636, 54.400045)])  # lines 0-3
sketch12.addConstraint([
    Sketcher.Constraint("Vertical", 0),
    Sketcher.Constraint("Horizontal", 1),
    Sketcher.Constraint("Vertical", 2),
    Sketcher.Constraint("Horizontal", 3),
    Sketcher.Constraint("DistanceX", 1, 1, 1, 2, 3.327161),
    Sketcher.Constraint("DistanceY", 0, 2, 0, 1, 61.874762),
    Sketcher.Constraint("DistanceX", -1, 1, 0, 2, 128.657475),
    Sketcher.Constraint("DistanceY", 0, 2, -1, 1, 7.474716),
])
pad11 = body5.newObject("PartDesign::Pad", "Pad010")
pad11.Profile = sketch12
pad11.setExpression("Length", "Params.pad11_length")
body6 = doc.addObject("PartDesign::Body", "Body005")

# Sketch on XY plane
sketch13 = body6.newObject("Sketcher::SketchObject", "Sketch012")
sketch13.AttachmentSupport = (doc.getObject("XY_Plane005"), [""])
sketch13.MapMode = "FlatFace"
add_polygon(sketch13, [(141.875315, -12.148742), (141.875315, -7.474716), (14.952887, -7.474716), (14.952887, -12.148742)])  # lines 0-3
sketch13.addConstraint([
    Sketcher.Constraint("Vertical", 0),
    Sketcher.Constraint("Horizontal", 1),
    Sketcher.Constraint("Vertical", 2),
    Sketcher.Constraint("Horizontal", 3),
    Sketcher.Constraint("DistanceX", 1, 2, 1, 1, 126.922428),
    Sketcher.Constraint("DistanceY", 0, 1, 0, 2, 4.674025),
    Sketcher.Constraint("DistanceY", 2, 2, -1, 1, 12.148742),
    Sketcher.Constraint("DistanceX", -1, 1, 0, 2, 141.875315),
])
pad12 = body6.newObject("PartDesign::Pad", "Pad011")
pad12.Profile = sketch13
pad12.setExpression("Length", "Params.pad12_length")
body7 = doc.addObject("PartDesign::Body", "Body006")

# Sketch on XY plane
sketch14 = body7.newObject("Sketcher::SketchObject", "Sketch013")
sketch14.AttachmentSupport = (doc.getObject("XY_Plane006"), [""])
sketch14.MapMode = "FlatFace"
add_polygon(sketch14, [(14.952887, -28.611155), (14.952887, -65.974548), (19.031328, -65.974548), (19.031328, -28.611155)])  # lines 0-3
sketch14.addConstraint([
    Sketcher.Constraint("Vertical", 0),
    Sketcher.Constraint("Horizontal", 1),
    Sketcher.Constraint("Vertical", 2),
    Sketcher.Constraint("Horizontal", 3),
    Sketcher.Constraint("DistanceX", 1, 1, 1, 2, 4.078441),
    Sketcher.Constraint("DistanceY", 0, 2, 0, 1, 37.363393),
    Sketcher.Constraint("DistanceY", 0, 2, -1, 1, 65.974548),
    Sketcher.Constraint("DistanceX", -1, 1, 1, 2, 19.031328),
])
pad13 = body7.newObject("PartDesign::Pad", "Pad012")
pad13.Profile = sketch14
pad13.setExpression("Length", "Params.pad13_length")
body8 = doc.addObject("PartDesign::Body", "Body007")

# Sketch on XY plane
sketch15 = body8.newObject("Sketcher::SketchObject", "Sketch014")
sketch15.AttachmentSupport = (doc.getObject("XY_Plane007"), [""])
sketch15.MapMode = "FlatFace"
add_polygon(sketch15, [(-32.141306, 48.417948), (-32.141306, 26.933365), (-10.266563, 26.933365), (-10.266563, 48.417948)])  # lines 0-3
sketch15.addConstraint([
    Sketcher.Constraint("Vertical", 0),
    Sketcher.Constraint("Horizontal", 1),
    Sketcher.Constraint("Vertical", 2),
    Sketcher.Constraint("Horizontal", 3),
    Sketcher.Constraint("DistanceX", 1, 1, 1, 2, 21.874743),
    Sketcher.Constraint("DistanceY", 0, 2, 0, 1, 21.484584),
    Sketcher.Constraint("DistanceY", -1, 1, 2, 2, 48.417948),
    Sketcher.Constraint("DistanceX", 0, 2, -1, 1, 32.141306),
])
pad14 = body8.newObject("PartDesign::Pad", "Pad013")
pad14.Profile = sketch15
pad14.setExpression("Length", "Params.pad14_length")
body9 = doc.addObject("PartDesign::Body", "Body008")

# Sketch on XY plane
sketch16 = body9.newObject("Sketcher::SketchObject", "Sketch015")
sketch16.AttachmentSupport = (doc.getObject("XY_Plane008"), [""])
sketch16.MapMode = "FlatFace"
add_polygon(sketch16, [(15.181715, 11.979362), (15.181715, -6.228787), (38.653115, -6.228787), (38.653115, 11.979362)])  # lines 0-3
sketch16.addConstraint([
    Sketcher.Constraint("Vertical", 0),
    Sketcher.Constraint("Horizontal", 1),
    Sketcher.Constraint("Vertical", 2),
    Sketcher.Constraint("Horizontal", 3),
    Sketcher.Constraint("DistanceX", 1, 1, 1, 2, 23.4714),
    Sketcher.Constraint("DistanceY", 0, 2, 0, 1, 18.208149),
    Sketcher.Constraint("DistanceY", -1, 1, 2, 2, 11.979362),
    Sketcher.Constraint("DistanceX", -1, 1, 0, 2, 15.181715),
])
pad15 = body9.newObject("PartDesign::Pad", "Pad014")
pad15.Profile = sketch16
pad15.setExpression("Length", "Params.pad15_length")

doc.recompute()
